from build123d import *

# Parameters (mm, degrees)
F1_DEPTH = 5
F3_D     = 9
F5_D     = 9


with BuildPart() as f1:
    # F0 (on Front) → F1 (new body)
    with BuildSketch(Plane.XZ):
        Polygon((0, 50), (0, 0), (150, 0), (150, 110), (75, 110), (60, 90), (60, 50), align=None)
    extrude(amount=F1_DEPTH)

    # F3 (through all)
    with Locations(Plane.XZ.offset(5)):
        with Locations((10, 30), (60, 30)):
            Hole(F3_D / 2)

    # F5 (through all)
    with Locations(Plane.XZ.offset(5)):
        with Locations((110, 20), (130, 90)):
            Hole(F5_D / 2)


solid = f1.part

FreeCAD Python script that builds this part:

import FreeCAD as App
import Part
import Sketcher
from FreeCAD import Vector


def add_polygon(sketch, points):
    """Adds a closed chain of lines whose ends are joined by coincident constraints."""
    first, n = sketch.GeometryCount, len(points)
    for a, b in zip(points, points[1:] + points[:1]):
        sketch.addGeometry(Part.LineSegment(App.Vector(*a, 0), App.Vector(*b, 0)), False)
    for i in range(n):
        sketch.addConstraint(Sketcher.Constraint("Coincident", first + i, 2, first + (i + 1) % n, 1))

doc = App.newDocument("Part")
body = doc.addObject("PartDesign::Body", "Body")

# Sketch on XZ plane
sketch1 = doc.addObject("Sketcher::SketchObject", "Sketch")
body.addObject(sketch1)
sketch1.AttachmentSupport = (doc.XZ_Plane, [""])
sketch1.MapMode = "FlatFace"
add_polygon(sketch1, [(0, 50), (0, 0), (150, 0), (150, 110), (75, 110), (60, 90), (60, 50)])  # lines 0-6
sketch1.addConstraint([
    Sketcher.Constraint("Vertical", 0),
    Sketcher.Constraint("Horizontal", 1),
    Sketcher.Constraint("Vertical", 2),
    Sketcher.Constraint("Horizontal", 3),
    Sketcher.Constraint("Vertical", 5),
    Sketcher.Constraint("Horizontal", 6),
    Sketcher.Constraint("Coincident", 0, 2, -1, 1),
    Sketcher.Constraint("DistanceX", 1, 1, 1, 2, 150.0),
    Sketcher.Constraint("DistanceX", 3, 2, 3, 1, 75.0),
    Sketcher.Constraint("DistanceX", 6, 2, 6, 1, 60.0),
    Sketcher.Constraint("DistanceY", 0, 2, 0, 1, 50.0),
    Sketcher.Constraint("DistanceY", 2, 1, 2, 2, 110.0),
    Sketcher.Constraint("DistanceY", 5, 2, 5, 1, 40.0),
])
pad1 = doc.addObject("PartDesign::Pad", "Pad")
body.addObject(pad1)
pad1.Profile = sketch1
pad1.Length = 5

# Sketch on XZ plane
sketch2 = doc.addObject("Sketcher::SketchObject", "Sketch001")
body.addObject(sketch2)
sketch2.AttachmentSupport = (doc.XZ_Plane, [""])
sketch2.MapMode = "FlatFace"
sketch2.AttachmentOffset = App.Placement(Vector(0, 0, 5), App.Rotation())
sketch2.addGeometry([
    Part.Circle(Vector(10, 30, 0), Vector(0, 0, 1), 4.5),
    Part.Circle(Vector(60, 30, 0), Vector(0, 0, 1), 4.5),
], False)
sketch2.addConstraint([
    Sketcher.Constraint("Equal", 0, 1),
    Sketcher.Constraint("Horizontal", 0, 3, 1, 3),
    Sketcher.Constraint("Diameter", 0, 9.0),
    Sketcher.Constraint("DistanceX", -1, 1, 0, 3, 10.0),
    Sketcher.Constraint("DistanceY", -1, 1, 0, 3, 30.0),
    Sketcher.Constraint("DistanceX", -1, 1, 1, 3, 60.0),
])
doc.recompute()
hole = doc.addObject("PartDesign::Hole", "Hole")
body.addObject(hole)
hole.Profile = sketch2
hole.ThreadType = "None"
hole.Diameter = 9
hole.DepthType = "ThroughAll"

# Sketch on XZ plane
sketch3 = doc.addObject("Sketcher::SketchObject", "Sketch002")
body.addObject(sketch3)
sketch3.AttachmentSupport = (doc.XZ_Plane, [""])
sketch3.MapMode = "FlatFace"
sketch3.AttachmentOffset = App.Placement(Vector(0, 0, 5), App.Rotation())
sketch3.addGeometry([
    Part.Circle(Vector(110, 20, 0), Vector(0, 0, 1), 4.5),
    Part.Circle(Vector(130, 90, 0), Vector(0, 0, 1), 4.5),
], False)
sketch3.addConstraint([
    Sketcher.Constraint("Equal", 0, 1),
    Sketcher.Constraint("Diameter", 0, 9.0),
    Sketcher.Constraint("DistanceX", -1, 1, 0, 3, 110.0),
    Sketcher.Constraint("DistanceY", -1, 1, 0, 3, 20.0),
    Sketcher.Constraint("DistanceX", -1, 1, 1, 3, 130.0),
    Sketcher.Constraint("DistanceY", -1, 1, 1, 3, 90.0),
])
doc.recompute()
hole2 = doc.addObject("PartDesign::Hole", "Hole001")
body.addObject(hole2)
hole2.Profile = sketch3
hole2.ThreadType = "None"
hole2.Diameter = 9
hole2.DepthType = "ThroughAll"

doc.recompute()
